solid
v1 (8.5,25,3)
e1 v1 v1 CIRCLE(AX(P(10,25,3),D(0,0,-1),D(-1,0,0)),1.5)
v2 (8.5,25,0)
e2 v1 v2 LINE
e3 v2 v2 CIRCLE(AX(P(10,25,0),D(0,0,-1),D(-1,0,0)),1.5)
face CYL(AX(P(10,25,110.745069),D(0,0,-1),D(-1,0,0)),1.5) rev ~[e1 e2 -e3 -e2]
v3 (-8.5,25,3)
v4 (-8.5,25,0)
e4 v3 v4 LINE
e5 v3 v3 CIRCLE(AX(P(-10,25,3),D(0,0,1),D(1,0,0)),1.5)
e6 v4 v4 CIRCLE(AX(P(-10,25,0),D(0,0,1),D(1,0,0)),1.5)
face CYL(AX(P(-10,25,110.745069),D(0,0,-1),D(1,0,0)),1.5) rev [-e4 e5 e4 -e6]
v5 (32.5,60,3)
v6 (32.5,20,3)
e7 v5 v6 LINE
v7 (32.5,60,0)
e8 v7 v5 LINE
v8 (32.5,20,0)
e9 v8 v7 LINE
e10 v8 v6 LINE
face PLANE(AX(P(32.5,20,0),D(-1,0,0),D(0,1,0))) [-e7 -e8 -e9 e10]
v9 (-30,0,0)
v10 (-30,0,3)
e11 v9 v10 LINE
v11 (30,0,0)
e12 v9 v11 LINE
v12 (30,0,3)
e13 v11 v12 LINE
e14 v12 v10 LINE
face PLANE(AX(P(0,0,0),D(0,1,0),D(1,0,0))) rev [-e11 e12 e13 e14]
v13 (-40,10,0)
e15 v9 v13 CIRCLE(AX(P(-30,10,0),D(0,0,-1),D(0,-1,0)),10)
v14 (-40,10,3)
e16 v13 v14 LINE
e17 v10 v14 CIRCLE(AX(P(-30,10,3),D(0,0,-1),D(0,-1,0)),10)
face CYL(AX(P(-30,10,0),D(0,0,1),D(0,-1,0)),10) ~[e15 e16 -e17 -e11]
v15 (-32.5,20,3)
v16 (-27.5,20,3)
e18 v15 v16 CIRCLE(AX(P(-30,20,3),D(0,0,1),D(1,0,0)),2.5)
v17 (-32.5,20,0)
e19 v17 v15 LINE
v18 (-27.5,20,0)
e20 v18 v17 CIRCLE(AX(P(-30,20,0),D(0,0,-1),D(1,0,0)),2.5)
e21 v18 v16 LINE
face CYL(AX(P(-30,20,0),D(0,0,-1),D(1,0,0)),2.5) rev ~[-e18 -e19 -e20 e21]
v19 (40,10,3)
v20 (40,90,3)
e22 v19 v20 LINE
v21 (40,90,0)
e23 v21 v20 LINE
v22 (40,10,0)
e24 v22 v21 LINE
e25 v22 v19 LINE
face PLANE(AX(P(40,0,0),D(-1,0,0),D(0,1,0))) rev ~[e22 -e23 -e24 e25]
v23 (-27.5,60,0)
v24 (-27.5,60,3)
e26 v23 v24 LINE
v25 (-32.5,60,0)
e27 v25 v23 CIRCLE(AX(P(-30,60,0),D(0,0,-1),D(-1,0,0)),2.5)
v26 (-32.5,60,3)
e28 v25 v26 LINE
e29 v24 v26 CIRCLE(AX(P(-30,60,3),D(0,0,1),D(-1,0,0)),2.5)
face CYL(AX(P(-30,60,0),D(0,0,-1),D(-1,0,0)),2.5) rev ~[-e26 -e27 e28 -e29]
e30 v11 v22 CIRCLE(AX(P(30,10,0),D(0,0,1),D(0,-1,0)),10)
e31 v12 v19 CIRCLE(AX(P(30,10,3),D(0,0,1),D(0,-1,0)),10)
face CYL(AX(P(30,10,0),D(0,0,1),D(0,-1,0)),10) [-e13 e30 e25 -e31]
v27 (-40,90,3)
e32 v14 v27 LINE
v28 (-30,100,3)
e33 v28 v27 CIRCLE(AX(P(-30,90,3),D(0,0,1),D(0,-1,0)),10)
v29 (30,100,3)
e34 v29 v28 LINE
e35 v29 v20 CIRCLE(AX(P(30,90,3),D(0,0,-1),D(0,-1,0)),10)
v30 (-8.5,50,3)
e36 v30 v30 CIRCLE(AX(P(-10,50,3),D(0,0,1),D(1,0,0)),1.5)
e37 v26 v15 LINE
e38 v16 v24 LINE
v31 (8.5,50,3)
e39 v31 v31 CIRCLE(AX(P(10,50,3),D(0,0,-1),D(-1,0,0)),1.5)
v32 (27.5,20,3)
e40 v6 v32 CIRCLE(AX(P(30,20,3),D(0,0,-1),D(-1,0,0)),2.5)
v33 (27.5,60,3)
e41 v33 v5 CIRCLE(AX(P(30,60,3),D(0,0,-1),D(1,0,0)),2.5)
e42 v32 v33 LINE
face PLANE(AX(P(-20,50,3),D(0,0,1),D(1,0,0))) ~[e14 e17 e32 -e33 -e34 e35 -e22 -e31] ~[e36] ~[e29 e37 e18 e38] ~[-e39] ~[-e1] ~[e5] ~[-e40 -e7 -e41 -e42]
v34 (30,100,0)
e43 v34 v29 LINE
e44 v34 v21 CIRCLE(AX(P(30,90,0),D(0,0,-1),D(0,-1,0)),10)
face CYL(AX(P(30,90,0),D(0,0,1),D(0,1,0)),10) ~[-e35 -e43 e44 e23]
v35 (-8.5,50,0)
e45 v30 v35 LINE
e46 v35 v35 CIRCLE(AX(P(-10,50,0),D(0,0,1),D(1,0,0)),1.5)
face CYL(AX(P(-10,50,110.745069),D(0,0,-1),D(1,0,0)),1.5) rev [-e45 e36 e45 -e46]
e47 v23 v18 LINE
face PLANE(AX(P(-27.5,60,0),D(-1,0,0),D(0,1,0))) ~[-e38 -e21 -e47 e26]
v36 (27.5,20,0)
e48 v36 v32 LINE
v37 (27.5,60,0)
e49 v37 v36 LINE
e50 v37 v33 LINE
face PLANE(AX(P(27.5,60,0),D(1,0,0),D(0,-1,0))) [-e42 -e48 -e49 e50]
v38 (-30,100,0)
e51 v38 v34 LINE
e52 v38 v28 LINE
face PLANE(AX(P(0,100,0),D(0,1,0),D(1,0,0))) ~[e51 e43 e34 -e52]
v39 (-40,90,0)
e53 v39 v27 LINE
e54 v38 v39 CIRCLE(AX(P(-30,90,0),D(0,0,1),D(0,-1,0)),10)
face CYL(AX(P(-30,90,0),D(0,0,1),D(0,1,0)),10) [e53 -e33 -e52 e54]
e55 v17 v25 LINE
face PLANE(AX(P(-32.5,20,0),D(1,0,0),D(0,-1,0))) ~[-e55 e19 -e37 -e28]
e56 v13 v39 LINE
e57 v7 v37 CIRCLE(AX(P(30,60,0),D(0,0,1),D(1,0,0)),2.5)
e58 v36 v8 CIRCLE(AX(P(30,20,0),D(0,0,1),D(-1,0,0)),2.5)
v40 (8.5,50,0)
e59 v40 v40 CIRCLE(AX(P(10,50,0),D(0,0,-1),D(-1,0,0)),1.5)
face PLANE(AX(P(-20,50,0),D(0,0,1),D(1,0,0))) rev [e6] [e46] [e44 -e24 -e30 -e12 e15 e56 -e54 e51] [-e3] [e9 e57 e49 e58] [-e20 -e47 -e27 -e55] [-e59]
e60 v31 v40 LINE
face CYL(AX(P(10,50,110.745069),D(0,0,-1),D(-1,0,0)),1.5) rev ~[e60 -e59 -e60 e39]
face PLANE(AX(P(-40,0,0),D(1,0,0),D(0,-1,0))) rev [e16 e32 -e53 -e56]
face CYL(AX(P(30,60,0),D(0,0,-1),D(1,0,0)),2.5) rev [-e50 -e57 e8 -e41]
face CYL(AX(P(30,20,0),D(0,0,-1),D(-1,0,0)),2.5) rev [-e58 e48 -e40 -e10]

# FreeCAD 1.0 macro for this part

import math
import FreeCAD as App
import Part
import Sketcher
from FreeCAD import Vector
Q = App.Units.Quantity


def edges_at(feature, points):
    """Names of the edges that pass closest to the given points."""
    edges = feature.Shape.Edges
    near = lambda p: min(range(len(edges)), key=lambda i: edges[i].distToShape(Part.Vertex(*p))[0])
    return sorted({f"Edge{near(p) + 1}" for p in points})


def add_polygon(sketch, points):
    """Adds a closed chain of lines whose ends are joined by coincident constraints."""
    first, n = sketch.GeometryCount, len(points)
    for a, b in zip(points, points[1:] + points[:1]):
        sketch.addGeometry(Part.LineSegment(App.Vector(*a, 0), App.Vector(*b, 0)), False)
    for i in range(n):
        sketch.addConstraint(Sketcher.Constraint("Coincident", first + i, 2, first + (i + 1) % n, 1))

doc = App.newDocument("Part")
body = doc.addObject("PartDesign::Body", "Body")

# Sketch on XY plane
sketch1 = body.newObject("Sketcher::SketchObject", "Sketch")
sketch1.AttachmentSupport = (doc.getObject("XY_Plane"), [""])
sketch1.MapMode = "FlatFace"
add_polygon(sketch1, [(0, 100), (0, 0), (40, 0), (40, 100)])  # lines 0-3
sketch1.addConstraint([
    Sketcher.Constraint("Vertical", 0),
    Sketcher.Constraint("Horizontal", 1),
    Sketcher.Constraint("Vertical", 2),
    Sketcher.Constraint("Horizontal", 3),
    Sketcher.Constraint("Coincident", 0, 2, -1, 1),
    Sketcher.Constraint("DistanceX", 1, 1, 1, 2, Q("40 mm")),
    Sketcher.Constraint("DistanceY", 0, 2, 0, 1, Q("100 mm")),
])
pad1 = body.newObject("PartDesign::Pad", "Pad")
pad1.Profile = sketch1
pad1.Length = 3

# Sketch on XY plane
sketch2 = body.newObject("Sketcher::SketchObject", "Sketch001")
sketch2.AttachmentSupport = (doc.getObject("XY_Plane"), [""])
sketch2.MapMode = "FlatFace"
sketch2.AttachmentOffset = App.Placement(Vector(0, 0, 3), App.Rotation())
sketch2.addGeometry([
    Part.Circle(Vector(10, 25, 0), Vector(0, 0, 1), 1.5),
    Part.Circle(Vector(10, 50, 0), Vector(0, 0, 1), 1.5),
], False)
sketch2.addConstraint([
    Sketcher.Constraint("Equal", 0, 1),
    Sketcher.Constraint("Vertical", 0, 3, 1, 3),
    Sketcher.Constraint("Diameter", 0, Q("3 mm")),
    Sketcher.Constraint("DistanceX", -1, 1, 0, 3, Q("10 mm")),
    Sketcher.Constraint("DistanceY", -1, 1, 0, 3, Q("25 mm")),
    Sketcher.Constraint("DistanceY", -1, 1, 1, 3, Q("50 mm")),
])
doc.recompute()
hole = body.newObject("PartDesign::Hole", "Hole")
hole.Profile = sketch2
hole.ThreadType = "None"
hole.Diameter = 3
hole.DepthType = "ThroughAll"

# Sketch on XY plane
sketch3 = body.newObject("Sketcher::SketchObject", "Sketch002")
sketch3.AttachmentSupport = (doc.getObject("XY_Plane"), [""])
sketch3.MapMode = "FlatFace"
sketch3.addGeometry([
    Part.ArcOfCircle(Part.Circle(Vector(30, 60, 0), Vector(0, 0, 1), 2.5), math.radians(0), math.radians(180)),
    Part.LineSegment(Vector(27.5, 60, 0), Vector(27.5, 20, 0)),
    Part.ArcOfCircle(Part.Circle(Vector(30, 20, 0), Vector(0, 0, 1), 2.5), math.radians(180), math.radians(360)),
    Part.LineSegment(Vector(32.5, 20, 0), Vector(32.5, 60, 0)),
], False)
sketch3.addConstraint([
    Sketcher.Constraint("Tangent", 0, 2, 1, 1),
    Sketcher.Constraint("Tangent", 1, 2, 2, 1),
    Sketcher.Constraint("Tangent", 2, 2, 3, 1),
    Sketcher.Constraint("Tangent", 3, 2, 0, 1),
    Sketcher.Constraint("Vertical", 1),
    Sketcher.Constraint("Vertical", 3),
    Sketcher.Constraint("Radius", 0, Q("2.5 mm")),
    Sketcher.Constraint("DistanceY", 1, 2, 1, 1, Q("40 mm")),
    Sketcher.Constraint("DistanceX", -1, 1, 0, 3, Q("30 mm")),
    Sketcher.Constraint("DistanceY", -1, 1, 0, 3, Q("60 mm")),
])
pocket1 = body.newObject("PartDesign::Pocket", "Pocket")
pocket1.Profile = sketch3
pocket1.Length = 77.015169
pocket1.Reversed = True
doc.recompute()

fillet = body.newObject("PartDesign::Fillet", "Fillet")
fillet.Base = (pocket1, edges_at(pocket1, [(40, 0, 1.5), (40, 100, 1.5)]))
fillet.Radius = 10
body2 = doc.addObject("PartDesign::Body", "Body001")
doc.recompute()

body2.BaseFeature = body
doc.recompute()

mirroring = doc.addObject("Part::Mirroring", "Mirroring")
mirroring.Source = body
mirroring.Base = Vector(0, 0, 0)
mirroring.Normal = Vector(1, 0, 0)
body3 = doc.addObject("PartDesign::Body", "Body002")
body3.BaseFeature = mirroring
boolean = body2.newObject("PartDesign::Boolean", "Boolean")
boolean.Type = "Fuse"
boolean.addObjects([body3])
doc.recompute()
mirroring.Visibility = False

doc.recompute()
